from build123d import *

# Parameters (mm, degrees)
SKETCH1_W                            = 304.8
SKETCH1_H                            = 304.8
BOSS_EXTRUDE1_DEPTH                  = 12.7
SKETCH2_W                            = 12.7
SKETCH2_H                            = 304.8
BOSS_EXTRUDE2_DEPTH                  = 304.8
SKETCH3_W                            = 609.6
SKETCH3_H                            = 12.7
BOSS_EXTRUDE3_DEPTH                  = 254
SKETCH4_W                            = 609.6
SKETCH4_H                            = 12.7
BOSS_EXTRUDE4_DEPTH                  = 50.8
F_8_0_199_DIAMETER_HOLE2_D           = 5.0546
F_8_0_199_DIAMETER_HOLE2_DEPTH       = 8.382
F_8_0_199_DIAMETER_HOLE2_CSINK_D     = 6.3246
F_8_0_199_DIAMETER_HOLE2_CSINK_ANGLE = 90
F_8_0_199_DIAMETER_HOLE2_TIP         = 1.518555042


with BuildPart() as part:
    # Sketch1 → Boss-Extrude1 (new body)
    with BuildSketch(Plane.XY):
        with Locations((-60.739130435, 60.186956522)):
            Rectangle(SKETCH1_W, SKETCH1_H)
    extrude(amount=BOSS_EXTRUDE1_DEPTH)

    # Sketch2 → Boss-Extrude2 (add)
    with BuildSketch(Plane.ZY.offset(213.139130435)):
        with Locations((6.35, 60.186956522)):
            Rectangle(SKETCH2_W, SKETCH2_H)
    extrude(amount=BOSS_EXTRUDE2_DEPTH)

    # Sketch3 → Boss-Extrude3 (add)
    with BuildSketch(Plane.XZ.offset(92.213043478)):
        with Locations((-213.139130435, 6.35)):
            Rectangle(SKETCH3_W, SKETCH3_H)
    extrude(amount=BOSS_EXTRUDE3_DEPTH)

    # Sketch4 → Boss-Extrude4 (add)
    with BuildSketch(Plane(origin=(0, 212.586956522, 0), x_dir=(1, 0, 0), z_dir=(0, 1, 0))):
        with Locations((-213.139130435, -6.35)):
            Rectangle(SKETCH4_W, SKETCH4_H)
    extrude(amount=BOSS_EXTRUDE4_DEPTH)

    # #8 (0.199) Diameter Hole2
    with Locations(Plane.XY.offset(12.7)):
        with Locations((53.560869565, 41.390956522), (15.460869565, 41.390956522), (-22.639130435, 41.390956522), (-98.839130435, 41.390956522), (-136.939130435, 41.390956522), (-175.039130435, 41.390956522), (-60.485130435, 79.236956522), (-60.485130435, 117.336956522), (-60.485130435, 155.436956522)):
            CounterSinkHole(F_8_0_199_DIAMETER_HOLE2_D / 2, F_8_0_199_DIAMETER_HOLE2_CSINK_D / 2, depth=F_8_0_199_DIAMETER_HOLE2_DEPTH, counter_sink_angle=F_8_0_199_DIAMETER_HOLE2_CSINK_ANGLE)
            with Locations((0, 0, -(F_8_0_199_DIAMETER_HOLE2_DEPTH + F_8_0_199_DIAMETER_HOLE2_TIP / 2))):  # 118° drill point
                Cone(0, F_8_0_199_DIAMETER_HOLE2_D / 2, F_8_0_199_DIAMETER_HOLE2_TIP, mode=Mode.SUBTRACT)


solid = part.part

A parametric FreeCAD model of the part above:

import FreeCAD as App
import Part
import Sketcher
Q = App.Units.Quantity

doc = App.newDocument("Part")
body = doc.addObject("PartDesign::Body", "Body")

sketch1 = body.newObject("Sketcher::SketchObject", "Sketch")
sketch1.AttachmentSupport = (doc.getObject("XY_Plane"), [""])
sketch1.MapMode = "FlatFace"
sketch1.addGeometry([
    Part.LineSegment(App.Vector(-213, 213, 0), App.Vector(-213, -92, 0)),
    Part.LineSegment(App.Vector(-213, -92, 0), App.Vector(92, -92, 0)),
    Part.LineSegment(App.Vector(92, -92, 0), App.Vector(92, 213, 0)),
    Part.LineSegment(App.Vector(92, 213, 0), App.Vector(-213, 213, 0)),
], False)
sketch1.addConstraint([
    Sketcher.Constraint("Coincident", 0, 2, 1, 1),
    Sketcher.Constraint("Coincident", 1, 2, 2, 1),
    Sketcher.Constraint("Coincident", 2, 2, 3, 1),
    Sketcher.Constraint("Coincident", 3, 2, 0, 1),
    Sketcher.Constraint("Vertical", 0),
    Sketcher.Constraint("Horizontal", 1),
    Sketcher.Constraint("Vertical", 2),
    Sketcher.Constraint("Horizontal", 3),
    Sketcher.Constraint("Equal", 3, 0),
    Sketcher.Constraint("DistanceX", 1, 1, 1, 2, Q("12 in")),
    Sketcher.Constraint("DistanceX", 0, 2, -1, 1, 213.13913),
    Sketcher.Constraint("DistanceY", 0, 2, -1, 1, 92.213043),
])
pad1 = body.newObject("PartDesign::Pad", "Pad")
pad1.Profile = sketch1
pad1.Length = Q("0.5 in")

sketch2 = body.newObject("Sketcher::SketchObject", "Sketch001")
sketch2.AttachmentSupport = (doc.getObject("YZ_Plane"), [""])
sketch2.MapMode = "FlatFace"
sketch2.AttachmentOffset = App.Placement(App.Vector(0, 0, -213.13913), App.Rotation())
sketch2.addGeometry([
    Part.LineSegment(App.Vector(213, 0, 0), App.Vector(-92, 0, 0)),
    Part.LineSegment(App.Vector(-92, 0, 0), App.Vector(-92, 13, 0)),
    Part.LineSegment(App.Vector(-92, 13, 0), App.Vector(213, 13, 0)),
    Part.LineSegment(App.Vector(213, 13, 0), App.Vector(213, 0, 0)),
], False)
sketch2.addConstraint([
    Sketcher.Constraint("Coincident", 0, 2, 1, 1),
    Sketcher.Constraint("Coincident", 1, 2, 2, 1),
    Sketcher.Constraint("Coincident", 2, 2, 3, 1),
    Sketcher.Constraint("Coincident", 3, 2, 0, 1),
    Sketcher.Constraint("Horizontal", 0),
    Sketcher.Constraint("Vertical", 1),
    Sketcher.Constraint("Horizontal", 2),
    Sketcher.Constraint("Vertical", 3),
    Sketcher.Constraint("PointOnObject", 0, 2, -1),
    Sketcher.Constraint("DistanceX", 0, 2, 0, 1, Q("12 in")),
    Sketcher.Constraint("DistanceY", 1, 1, 1, 2, Q("0.5 in")),
    Sketcher.Constraint("DistanceX", 0, 2, -1, 1, 92.213043),
])
pad2 = body.newObject("PartDesign::Pad", "Pad001")
pad2.Profile = sketch2
pad2.Length = Q("12 in")
pad2.Reversed = True

sketch3 = body.newObject("Sketcher::SketchObject", "Sketch002")
sketch3.AttachmentSupport = (doc.getObject("XZ_Plane"), [""])
sketch3.MapMode = "FlatFace"
sketch3.AttachmentOffset = App.Placement(App.Vector(0, 0, 92.213043), App.Rotation())
sketch3.addGeometry([
    Part.LineSegment(App.Vector(-518, 13, 0), App.Vector(-518, 0, 0)),
    Part.LineSegment(App.Vector(-518, 0, 0), App.Vector(92, 0, 0)),
    Part.LineSegment(App.Vector(92, 0, 0), App.Vector(92, 13, 0)),
    Part.LineSegment(App.Vector(92, 13, 0), App.Vector(-518, 13, 0)),
], False)
sketch3.addConstraint([
    Sketcher.Constraint("Coincident", 0, 2, 1, 1),
    Sketcher.Constraint("Coincident", 1, 2, 2, 1),
    Sketcher.Constraint("Coincident", 2, 2, 3, 1),
    Sketcher.Constraint("Coincident", 3, 2, 0, 1),
    Sketcher.Constraint("Vertical", 0),
    Sketcher.Constraint("Horizontal", 1),
    Sketcher.Constraint("Vertical", 2),
    Sketcher.Constraint("Horizontal", 3),
    Sketcher.Constraint("PointOnObject", 0, 2, -1),
    Sketcher.Constraint("DistanceX", 1, 1, 1, 2, Q("24 in")),
    Sketcher.Constraint("DistanceY", 0, 2, 0, 1, Q("0.5 in")),
    Sketcher.Constraint("DistanceX", 0, 2, -1, 1, 517.93913),
])
pad3 = body.newObject("PartDesign::Pad", "Pad002")
pad3.Profile = sketch3
pad3.Length = Q("10 in")

sketch4 = body.newObject("Sketcher::SketchObject", "Sketch003")
sketch4.AttachmentSupport = (doc.getObject("XZ_Plane"), [""])
sketch4.MapMode = "FlatFace"
sketch4.AttachmentOffset = App.Placement(App.Vector(0, 0, -212.586957), App.Rotation())
sketch4.addGeometry([
    Part.LineSegment(App.Vector(-518, 0, 0), App.Vector(-518, 13, 0)),
    Part.LineSegment(App.Vector(-518, 13, 0), App.Vector(92, 13, 0)),
    Part.LineSegment(App.Vector(92, 13, 0), App.Vector(92, 0, 0)),
    Part.LineSegment(App.Vector(92, 0, 0), App.Vector(-518, 0, 0)),
], False)
sketch4.addConstraint([
    Sketcher.Constraint("Coincident", 0, 2, 1, 1),
    Sketcher.Constraint("Coincident", 1, 2, 2, 1),
    Sketcher.Constraint("Coincident", 2, 2, 3, 1),
    Sketcher.Constraint("Coincident", 3, 2, 0, 1),
    Sketcher.Constraint("Vertical", 0),
    Sketcher.Constraint("Horizontal", 1),
    Sketcher.Constraint("Vertical", 2),
    Sketcher.Constraint("Horizontal", 3),
    Sketcher.Constraint("PointOnObject", 2, 2, -1),
    Sketcher.Constraint("DistanceX", 1, 1, 1, 2, Q("24 in")),
    Sketcher.Constraint("DistanceY", 0, 1, 0, 2, Q("0.5 in")),
    Sketcher.Constraint("DistanceX", 0, 2, -1, 1, 517.93913),
])
pad4 = body.newObject("PartDesign::Pad", "Pad003")
pad4.Profile = sketch4
pad4.Length = Q("2 in")
pad4.Reversed = True

sketch5 = body.newObject("Sketcher::SketchObject", "Sketch004")
sketch5.AttachmentSupport = (doc.getObject("XY_Plane"), [""])
sketch5.MapMode = "FlatFace"
sketch5.AttachmentOffset = App.Placement(App.Vector(0, 0, 0.5 * 25.4), App.Rotation())
sketch5.addGeometry([
    Part.Circle(App.Vector(53.6, 41.4, 0), App.Vector(0, 0, 1), 2.5),
    Part.Circle(App.Vector(15.5, 41.4, 0), App.Vector(0, 0, 1), 2.5),
    Part.Circle(App.Vector(-22.6, 41.4, 0), App.Vector(0, 0, 1), 2.5),
    Part.Circle(App.Vector(-98.8, 41.4, 0), App.Vector(0, 0, 1), 2.5),
    Part.Circle(App.Vector(-136.9, 41.4, 0), App.Vector(0, 0, 1), 2.5),
    Part.Circle(App.Vector(-175, 41.4, 0), App.Vector(0, 0, 1), 2.5),
    Part.Circle(App.Vector(-60.5, 79.2, 0), App.Vector(0, 0, 1), 2.5),
    Part.Circle(App.Vector(-60.5, 117.3, 0), App.Vector(0, 0, 1), 2.5),
    Part.Circle(App.Vector(-60.5, 155.4, 0), App.Vector(0, 0, 1), 2.5),
], False)
sketch5.addConstraint([
    Sketcher.Constraint("Equal", 0, 1),
    Sketcher.Constraint("Equal", 1, 2),
    Sketcher.Constraint("Equal", 2, 3),
    Sketcher.Constraint("Equal", 3, 4),
    Sketcher.Constraint("Equal", 4, 5),
    Sketcher.Constraint("Equal", 5, 6),
    Sketcher.Constraint("Equal", 6, 7),
    Sketcher.Constraint("Equal", 7, 8),
    Sketcher.Constraint("Horizontal", 0, 3, 1, 3),
    Sketcher.Constraint("Horizontal", 1, 3, 2, 3),
    Sketcher.Constraint("Horizontal", 2, 3, 3, 3),
    Sketcher.Constraint("Horizontal", 3, 3, 4, 3),
    Sketcher.Constraint("Horizontal", 4, 3, 5, 3),
    Sketcher.Constraint("Vertical", 6, 3, 7, 3),
    Sketcher.Constraint("Vertical", 7, 3, 8, 3),
    Sketcher.Constraint("Diameter", 0, Q("0.199 in")),
    Sketcher.Constraint("DistanceX", 2, 3, 0, 3, Q("3 in")),
    Sketcher.Constraint("DistanceX", 3, 3, 2, 3, Q("3 in")),
    Sketcher.Constraint("DistanceX", 4, 3, 1, 3, Q("6 in")),
    Sketcher.Constraint("DistanceX", 5, 3, 3, 3, Q("3 in")),
    Sketcher.Constraint("DistanceY", 6, 3, 8, 3, Q("3 in")),
    Sketcher.Constraint("DistanceX", 1, 3, 0, 3, Q("1.5 in")),
    Sketcher.Constraint("DistanceY", 6, 3, 7, 3, Q("1.5 in")),
    Sketcher.Constraint("DistanceX", 6, 3, 2, 3, Q("1.49 in")),
    Sketcher.Constraint("DistanceY", 2, 3, 6, 3, Q("1.49 in")),
    Sketcher.Constraint("DistanceX", -1, 1, 0, 3, 53.56087),
    Sketcher.Constraint("DistanceY", -1, 1, 0, 3, 41.390957),
])
doc.recompute()
hole = body.newObject("PartDesign::Hole", "Hole")
hole.Profile = sketch5
hole.ThreadType = "None"
hole.Diameter = Q("0.199 in")
hole.DepthType = "Dimension"
hole.Depth = Q("0.33 in")
hole.DrillPoint = "Angled"
hole.DrillPointAngle = 118
hole.HoleCutType = "Countersink"
hole.HoleCutDiameter = Q("0.249 in")
hole.HoleCutCountersinkAngle = 90

doc.recompute()
